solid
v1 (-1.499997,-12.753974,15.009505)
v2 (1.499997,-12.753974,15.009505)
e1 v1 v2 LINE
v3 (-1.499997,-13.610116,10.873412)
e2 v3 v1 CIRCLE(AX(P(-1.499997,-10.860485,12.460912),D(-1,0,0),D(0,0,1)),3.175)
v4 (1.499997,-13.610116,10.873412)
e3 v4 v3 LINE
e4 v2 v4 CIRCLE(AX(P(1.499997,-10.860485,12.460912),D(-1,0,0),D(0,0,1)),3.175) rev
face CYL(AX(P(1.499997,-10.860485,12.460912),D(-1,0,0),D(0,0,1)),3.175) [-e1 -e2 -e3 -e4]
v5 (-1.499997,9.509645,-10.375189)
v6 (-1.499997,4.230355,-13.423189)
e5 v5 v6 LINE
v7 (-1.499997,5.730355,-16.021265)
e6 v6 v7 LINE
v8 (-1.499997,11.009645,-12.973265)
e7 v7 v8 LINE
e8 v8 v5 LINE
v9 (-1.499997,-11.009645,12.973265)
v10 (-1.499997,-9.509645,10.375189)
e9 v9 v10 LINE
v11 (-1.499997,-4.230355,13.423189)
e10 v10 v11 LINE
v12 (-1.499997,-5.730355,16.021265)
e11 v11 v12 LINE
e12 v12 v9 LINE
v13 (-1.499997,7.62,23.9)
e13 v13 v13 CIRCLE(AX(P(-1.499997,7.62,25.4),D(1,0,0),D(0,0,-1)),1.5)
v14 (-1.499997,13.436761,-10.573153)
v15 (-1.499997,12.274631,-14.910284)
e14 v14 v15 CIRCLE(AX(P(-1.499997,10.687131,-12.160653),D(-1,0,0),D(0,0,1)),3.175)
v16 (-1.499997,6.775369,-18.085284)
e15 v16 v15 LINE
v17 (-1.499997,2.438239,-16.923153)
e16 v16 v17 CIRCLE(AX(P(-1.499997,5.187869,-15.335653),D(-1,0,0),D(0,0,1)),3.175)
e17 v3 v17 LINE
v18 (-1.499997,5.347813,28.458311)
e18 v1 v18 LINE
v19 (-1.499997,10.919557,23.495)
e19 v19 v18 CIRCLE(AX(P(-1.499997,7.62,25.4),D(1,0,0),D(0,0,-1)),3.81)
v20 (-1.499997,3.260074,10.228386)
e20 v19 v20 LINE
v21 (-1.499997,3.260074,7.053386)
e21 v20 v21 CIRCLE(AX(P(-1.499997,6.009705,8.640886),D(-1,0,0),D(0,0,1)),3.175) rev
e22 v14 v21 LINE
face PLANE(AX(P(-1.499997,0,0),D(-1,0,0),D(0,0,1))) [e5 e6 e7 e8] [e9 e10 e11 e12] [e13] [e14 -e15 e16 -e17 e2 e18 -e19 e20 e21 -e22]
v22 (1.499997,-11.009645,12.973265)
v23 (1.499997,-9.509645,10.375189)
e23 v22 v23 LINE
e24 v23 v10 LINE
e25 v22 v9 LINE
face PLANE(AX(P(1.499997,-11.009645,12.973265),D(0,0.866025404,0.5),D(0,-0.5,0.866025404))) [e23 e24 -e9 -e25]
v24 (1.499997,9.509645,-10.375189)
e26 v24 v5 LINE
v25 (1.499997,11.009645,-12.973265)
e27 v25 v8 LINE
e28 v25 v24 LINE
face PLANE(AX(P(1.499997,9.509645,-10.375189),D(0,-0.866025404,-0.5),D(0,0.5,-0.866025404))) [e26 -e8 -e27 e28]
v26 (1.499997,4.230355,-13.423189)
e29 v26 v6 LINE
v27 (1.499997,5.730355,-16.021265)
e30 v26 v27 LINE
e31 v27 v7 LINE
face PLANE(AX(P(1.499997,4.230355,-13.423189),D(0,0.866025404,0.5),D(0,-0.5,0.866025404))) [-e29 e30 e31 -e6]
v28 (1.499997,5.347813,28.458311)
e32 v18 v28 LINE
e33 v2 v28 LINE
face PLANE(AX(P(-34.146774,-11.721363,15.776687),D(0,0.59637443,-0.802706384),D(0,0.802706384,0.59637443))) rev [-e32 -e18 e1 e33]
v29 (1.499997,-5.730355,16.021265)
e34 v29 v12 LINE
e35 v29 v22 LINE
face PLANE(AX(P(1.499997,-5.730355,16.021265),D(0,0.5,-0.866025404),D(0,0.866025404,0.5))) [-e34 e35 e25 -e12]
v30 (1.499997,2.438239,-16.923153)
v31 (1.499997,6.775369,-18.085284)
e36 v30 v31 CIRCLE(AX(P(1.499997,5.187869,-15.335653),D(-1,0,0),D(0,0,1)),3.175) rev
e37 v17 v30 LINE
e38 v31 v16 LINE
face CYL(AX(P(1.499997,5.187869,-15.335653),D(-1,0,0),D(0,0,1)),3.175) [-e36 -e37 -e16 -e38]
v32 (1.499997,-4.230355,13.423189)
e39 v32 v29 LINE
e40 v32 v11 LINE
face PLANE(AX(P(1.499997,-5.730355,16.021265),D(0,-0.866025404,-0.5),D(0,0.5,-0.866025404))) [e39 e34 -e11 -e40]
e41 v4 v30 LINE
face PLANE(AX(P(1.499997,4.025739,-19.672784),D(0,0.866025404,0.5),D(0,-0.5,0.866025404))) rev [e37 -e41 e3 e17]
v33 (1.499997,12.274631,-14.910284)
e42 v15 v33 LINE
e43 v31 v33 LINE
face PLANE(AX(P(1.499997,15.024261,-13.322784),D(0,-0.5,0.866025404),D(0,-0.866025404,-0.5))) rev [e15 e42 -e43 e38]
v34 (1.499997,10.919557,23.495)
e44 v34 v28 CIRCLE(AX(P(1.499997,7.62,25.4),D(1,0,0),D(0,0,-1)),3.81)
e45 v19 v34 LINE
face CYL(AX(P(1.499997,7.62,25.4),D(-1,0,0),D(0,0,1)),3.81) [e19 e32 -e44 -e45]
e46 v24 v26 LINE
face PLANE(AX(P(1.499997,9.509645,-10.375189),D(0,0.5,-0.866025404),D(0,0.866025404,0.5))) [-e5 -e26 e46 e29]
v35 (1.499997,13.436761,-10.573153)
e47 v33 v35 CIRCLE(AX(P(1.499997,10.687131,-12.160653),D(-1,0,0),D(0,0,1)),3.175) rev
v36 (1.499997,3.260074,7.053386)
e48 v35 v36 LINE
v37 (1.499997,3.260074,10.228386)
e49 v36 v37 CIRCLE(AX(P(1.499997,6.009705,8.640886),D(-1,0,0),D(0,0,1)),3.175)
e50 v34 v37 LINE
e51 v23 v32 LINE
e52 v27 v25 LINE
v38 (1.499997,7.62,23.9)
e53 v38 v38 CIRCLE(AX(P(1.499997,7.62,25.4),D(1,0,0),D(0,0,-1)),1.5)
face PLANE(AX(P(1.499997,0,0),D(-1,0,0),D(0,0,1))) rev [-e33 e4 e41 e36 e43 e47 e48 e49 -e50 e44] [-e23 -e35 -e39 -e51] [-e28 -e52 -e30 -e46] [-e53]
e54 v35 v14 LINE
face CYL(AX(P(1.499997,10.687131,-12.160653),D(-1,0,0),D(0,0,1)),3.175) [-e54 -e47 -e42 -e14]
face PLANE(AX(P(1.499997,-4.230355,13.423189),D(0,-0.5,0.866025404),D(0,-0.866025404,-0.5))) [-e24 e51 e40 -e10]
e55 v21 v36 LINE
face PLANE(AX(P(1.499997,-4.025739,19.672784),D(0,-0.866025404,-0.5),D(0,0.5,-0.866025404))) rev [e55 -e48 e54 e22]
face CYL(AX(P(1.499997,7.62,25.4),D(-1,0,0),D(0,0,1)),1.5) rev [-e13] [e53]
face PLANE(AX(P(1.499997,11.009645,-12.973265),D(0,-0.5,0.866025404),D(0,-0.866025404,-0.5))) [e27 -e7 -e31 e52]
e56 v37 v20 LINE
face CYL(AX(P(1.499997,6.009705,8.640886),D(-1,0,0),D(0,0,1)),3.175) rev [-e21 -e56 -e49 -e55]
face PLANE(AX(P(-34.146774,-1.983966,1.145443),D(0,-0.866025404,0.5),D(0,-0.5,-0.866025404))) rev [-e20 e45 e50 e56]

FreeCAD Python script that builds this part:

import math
import FreeCAD as App
import Part
import Sketcher
Q = App.Units.Quantity


def edges_at(feature, points):
    """Names of the edges that pass closest to the given points."""
    edges = feature.Shape.Edges
    near = lambda p: min(range(len(edges)), key=lambda i: edges[i].distToShape(Part.Vertex(*p))[0])
    return sorted({f"Edge{near(p) + 1}" for p in points})

doc = App.newDocument("Part")
body = doc.addObject("PartDesign::Body", "Body")

# Sketch on YZ plane
sketch1 = doc.addObject("Sketcher::SketchObject", "Sketch")
body.addObject(sketch1)
sketch1.AttachmentSupport = (doc.YZ_Plane, [""])
sketch1.MapMode = "FlatFace"
sketch1.addGeometry([
    Part.LineSegment(App.Vector(15, -13.3, 0), App.Vector(-4, 19.7, 0)),  # 0
    Part.LineSegment(App.Vector(-4, 19.7, 0), App.Vector(-15, 13.3, 0)),  # 1
    Part.LineSegment(App.Vector(-15, 13.3, 0), App.Vector(4, -19.7, 0)),  # 2
    Part.LineSegment(App.Vector(4, -19.7, 0), App.Vector(15, -13.3, 0)),  # 3
    Part.LineSegment(App.Vector(-5.7, 16, 0), App.Vector(-4.2, 13.4, 0)),  # 4
    Part.LineSegment(App.Vector(-4.2, 13.4, 0), App.Vector(-9.5, 10.4, 0)),  # 5
    Part.LineSegment(App.Vector(-9.5, 10.4, 0), App.Vector(-11, 13, 0)),  # 6
    Part.LineSegment(App.Vector(-11, 13, 0), App.Vector(-5.7, 16, 0)),  # 7
    Part.LineSegment(App.Vector(9.5, -10.4, 0), App.Vector(11, -13, 0)),  # 8
    Part.LineSegment(App.Vector(11, -13, 0), App.Vector(5.7, -16, 0)),  # 9
    Part.LineSegment(App.Vector(5.7, -16, 0), App.Vector(4.2, -13.4, 0)),  # 10
    Part.LineSegment(App.Vector(4.2, -13.4, 0), App.Vector(9.5, -10.4, 0)),  # 11
], False)
sketch1.addConstraint([
    Sketcher.Constraint("Coincident", 0, 2, 1, 1),
    Sketcher.Constraint("Coincident", 1, 2, 2, 1),
    Sketcher.Constraint("Coincident", 2, 2, 3, 1),
    Sketcher.Constraint("Coincident", 3, 2, 0, 1),
    Sketcher.Constraint("Coincident", 4, 2, 5, 1),
    Sketcher.Constraint("Coincident", 5, 2, 6, 1),
    Sketcher.Constraint("Coincident", 6, 2, 7, 1),
    Sketcher.Constraint("Coincident", 7, 2, 4, 1),
    Sketcher.Constraint("Coincident", 8, 2, 9, 1),
    Sketcher.Constraint("Coincident", 9, 2, 10, 1),
    Sketcher.Constraint("Coincident", 10, 2, 11, 1),
    Sketcher.Constraint("Coincident", 11, 2, 8, 1),
    Sketcher.Constraint("Symmetric", 0, 2, 2, 2, -1, 1),
    Sketcher.Constraint("Symmetric", 1, 2, 3, 2, -1, 1),
    Sketcher.Constraint("Symmetric", 6, 2, 8, 2, -1, 1),
    Sketcher.Constraint("Symmetric", 7, 2, 9, 2, -1, 1),
    Sketcher.Constraint("Symmetric", 4, 2, 10, 2, -1, 1),
    Sketcher.Constraint("Symmetric", 5, 2, 11, 2, -1, 1),
    Sketcher.Constraint("Perpendicular", 0, 1),
    Sketcher.Constraint("Perpendicular", 3, 4),
    Sketcher.Constraint("Perpendicular", 4, 5),
    Sketcher.Constraint("Perpendicular", 5, 6),
    Sketcher.Constraint("Perpendicular", 6, 7),
    Sketcher.Constraint("Angle", 0, Q("120 deg")),
    Sketcher.Constraint("Distance", 0, Q("1.5 in")),
    Sketcher.Constraint("Distance", 1, Q("0.5 in")),
    Sketcher.Constraint("DistanceX", 4, 2, 8, 2, Q("0.6 in")),
    Sketcher.Constraint("Distance", 5, Q("0.24 in")),
    Sketcher.Constraint("Distance", 4, Q("3 mm")),
    Sketcher.Constraint("DistanceY", -1, 1, 4, 2, Q("13.423189 mm")),
])
pad1 = doc.addObject("PartDesign::Pad", "Pad")
body.addObject(pad1)
pad1.Profile = sketch1
pad1.Length = 2.999994
pad1.Midplane = True
body2 = doc.addObject("PartDesign::Body", "Body001")

# Sketch on YZ plane
sketch2 = doc.addObject("Sketcher::SketchObject", "Sketch001")
body2.addObject(sketch2)
sketch2.AttachmentSupport = (doc.getObject("YZ_Plane001"), [""])
sketch2.MapMode = "FlatFace"
sketch2.addGeometry([
    Part.Circle(App.Vector(7.6, 25.4, 0), App.Vector(0, 0, 1), 3.8),
    Part.Circle(App.Vector(7.6, 25.4, 0), App.Vector(0, 0, 1), 1.5),
], False)
sketch2.addConstraint([
    Sketcher.Constraint("Coincident", 1, 3, 0, 3),
    Sketcher.Constraint("Diameter", 0, Q("0.3 in")),
    Sketcher.Constraint("DistanceY", -1, 1, 0, 3, Q("1 in")),
    Sketcher.Constraint("DistanceX", -1, 1, 0, 3, Q("0.3 in")),
    Sketcher.Constraint("Diameter", 1, Q("3 mm")),
])
pad2 = doc.addObject("PartDesign::Pad", "Pad001")
body2.addObject(pad2)
pad2.Profile = sketch2
pad2.Length = 2.999994
pad2.Midplane = True
body.AllowCompound = True
doc.recompute()

boolean = doc.addObject("PartDesign::Boolean", "Boolean")
body.addObject(boolean)
boolean.Type = "Fuse"
boolean.addObjects([body2])

# Sketch on YZ plane
sketch3 = doc.addObject("Sketcher::SketchObject", "Sketch002")
body.addObject(sketch3)
sketch3.AttachmentSupport = (doc.YZ_Plane, [""])
sketch3.MapMode = "FlatFace"
sketch3.AttachmentOffset = App.Placement(App.Vector(0, 0, 1.499997), App.Rotation())
sketch3.addGeometry([
    Part.LineSegment(App.Vector(5.3, 28.5, 0), App.Vector(-15, 13.3, 0)),  # 0
    Part.LineSegment(App.Vector(-15, 13.3, 0), App.Vector(-4, 19.7, 0)),  # 1
    Part.LineSegment(App.Vector(-4, 19.7, 0), App.Vector(2.3, 8.6, 0)),  # 2
    Part.LineSegment(App.Vector(2.3, 8.6, 0), App.Vector(10.9, 23.5, 0)),  # 3
    Part.ArcOfCircle(Part.Circle(App.Vector(7.6, 25.4, 0), App.Vector(0, 0, 1), 3.8), math.radians(-90), math.radians(-30)),  # 4
    Part.ArcOfCircle(Part.Circle(App.Vector(7.6, 25.4, 0), App.Vector(0, 0, 1), 3.8), math.radians(127), math.radians(270)),  # 5
], False)
sketch3.addConstraint([
    Sketcher.Constraint("Coincident", 0, 2, 1, 1),
    Sketcher.Constraint("Coincident", 1, 2, 2, 1),
    Sketcher.Constraint("Coincident", 2, 2, 3, 1),
    Sketcher.Constraint("Tangent", 3, 2, 4, 2),
    Sketcher.Constraint("Tangent", 4, 1, 5, 2),
    Sketcher.Constraint("Tangent", 5, 1, 0, 1),
    Sketcher.Constraint("Equal", 4, 5),
    Sketcher.Constraint("Perpendicular", 1, 2),
    Sketcher.Constraint("Vertical", 5, 3, 4, 1),
    Sketcher.Constraint("Radius", 4, Q("0.15 in")),
    Sketcher.Constraint("DistanceY", -1, 1, 4, 3, Q("1 in")),
    Sketcher.Constraint("Angle", 1, Q("30 deg")),
    Sketcher.Constraint("Angle", 3, Q("60 deg")),
    Sketcher.Constraint("Distance", 1, Q("0.5 in")),
    Sketcher.Constraint("DistanceX", -1, 1, 4, 3, Q("0.3 in")),
    Sketcher.Constraint("Distance", 2, Q("12.738538 mm")),
    Sketcher.Constraint("DistanceX", 0, 2, -1, 1, Q("15.024261 mm")),
])
pad3 = doc.addObject("PartDesign::Pad", "Pad002")
body.addObject(pad3)
pad3.Profile = sketch3
pad3.Length = 2.999994
pad3.Reversed = True
doc.recompute()

fillet = doc.addObject("PartDesign::Fillet", "Fillet")
body.addObject(fillet)
fillet.Base = (pad3, edges_at(pad3, [
    (0, 2.344, 8.641),
    (0, 15.024, -13.323),
    (0, 4.026, -19.673),
    (0, -15.024, 13.323),
]))
fillet.Radius = Q("0.125 in")

doc.recompute()
